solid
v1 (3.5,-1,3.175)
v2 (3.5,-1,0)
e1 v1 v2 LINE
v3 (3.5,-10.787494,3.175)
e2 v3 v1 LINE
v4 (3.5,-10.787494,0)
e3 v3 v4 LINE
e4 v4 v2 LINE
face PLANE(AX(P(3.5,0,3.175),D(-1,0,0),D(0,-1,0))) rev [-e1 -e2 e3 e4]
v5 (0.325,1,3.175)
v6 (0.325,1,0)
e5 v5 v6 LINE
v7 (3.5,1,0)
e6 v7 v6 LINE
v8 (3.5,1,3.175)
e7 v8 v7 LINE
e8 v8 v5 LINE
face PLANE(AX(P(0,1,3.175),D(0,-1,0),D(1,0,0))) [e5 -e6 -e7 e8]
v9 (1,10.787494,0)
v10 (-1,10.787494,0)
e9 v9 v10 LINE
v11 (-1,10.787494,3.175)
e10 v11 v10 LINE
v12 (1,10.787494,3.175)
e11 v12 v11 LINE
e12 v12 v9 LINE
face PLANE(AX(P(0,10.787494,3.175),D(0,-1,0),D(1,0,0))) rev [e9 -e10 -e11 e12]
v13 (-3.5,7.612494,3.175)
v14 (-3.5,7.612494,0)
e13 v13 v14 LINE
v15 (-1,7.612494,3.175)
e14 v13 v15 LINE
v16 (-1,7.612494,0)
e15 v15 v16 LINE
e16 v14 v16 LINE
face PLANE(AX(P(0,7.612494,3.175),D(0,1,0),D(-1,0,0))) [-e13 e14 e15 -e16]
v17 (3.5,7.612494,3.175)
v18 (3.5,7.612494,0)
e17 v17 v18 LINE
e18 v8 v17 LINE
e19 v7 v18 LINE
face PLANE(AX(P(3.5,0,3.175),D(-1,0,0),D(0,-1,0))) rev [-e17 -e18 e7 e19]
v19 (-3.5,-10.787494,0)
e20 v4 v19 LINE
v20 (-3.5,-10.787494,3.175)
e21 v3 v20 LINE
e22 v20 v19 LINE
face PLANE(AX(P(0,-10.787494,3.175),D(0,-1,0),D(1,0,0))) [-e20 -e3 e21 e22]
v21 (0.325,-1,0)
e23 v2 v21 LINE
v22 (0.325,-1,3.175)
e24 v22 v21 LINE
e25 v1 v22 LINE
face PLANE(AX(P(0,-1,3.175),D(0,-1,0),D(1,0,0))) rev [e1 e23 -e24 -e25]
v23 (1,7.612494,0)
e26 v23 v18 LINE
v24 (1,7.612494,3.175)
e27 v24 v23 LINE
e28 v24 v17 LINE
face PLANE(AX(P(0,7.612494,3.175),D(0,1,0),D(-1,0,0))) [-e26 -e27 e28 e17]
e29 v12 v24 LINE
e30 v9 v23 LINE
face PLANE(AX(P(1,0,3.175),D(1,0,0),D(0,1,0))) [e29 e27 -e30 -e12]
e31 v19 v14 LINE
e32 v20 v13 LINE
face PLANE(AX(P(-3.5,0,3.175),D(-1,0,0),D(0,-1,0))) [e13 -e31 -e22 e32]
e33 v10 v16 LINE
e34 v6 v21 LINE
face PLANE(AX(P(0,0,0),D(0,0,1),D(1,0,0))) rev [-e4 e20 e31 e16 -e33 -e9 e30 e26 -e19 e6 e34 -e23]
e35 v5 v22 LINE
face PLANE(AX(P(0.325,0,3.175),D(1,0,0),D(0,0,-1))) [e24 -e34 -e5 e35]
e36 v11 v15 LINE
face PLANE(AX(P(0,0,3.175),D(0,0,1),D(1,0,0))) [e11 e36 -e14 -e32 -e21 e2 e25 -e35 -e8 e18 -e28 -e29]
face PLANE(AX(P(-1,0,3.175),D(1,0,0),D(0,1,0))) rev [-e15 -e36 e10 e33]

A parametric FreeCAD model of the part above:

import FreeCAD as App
import Part
import Sketcher

V = App.Vector


def add_polygon(sketch, points):
    """Adds a closed chain of lines whose ends are joined by coincident constraints."""
    first, n = sketch.GeometryCount, len(points)
    for a, b in zip(points, points[1:] + points[:1]):
        sketch.addGeometry(Part.LineSegment(App.Vector(*a, 0), App.Vector(*b, 0)), False)
    for i in range(n):
        sketch.addConstraint(Sketcher.Constraint("Coincident", first + i, 2, first + (i + 1) % n, 1))

doc = App.newDocument("Part")
body = doc.addObject("PartDesign::Body", "Body")

# Sketch on XY plane
sketch1 = body.newObject("Sketcher::SketchObject", "Sketch")
sketch1.AttachmentSupport = (doc.getObject("XY_Plane"), [""])
sketch1.MapMode = "FlatFace"
add_polygon(sketch1, [(-3.5, -10.8), (3.5, -10.8), (3.5, -1), (0.3, -1), (0.3, 1), (3.5, 1), (3.5, 7.6), (1, 7.6), (1, 10.8), (-1, 10.8), (-1, 7.6), (-3.5, 7.6)])  # lines 0-11
sketch1.addConstraint([
    Sketcher.Constraint("Horizontal", 0),
    Sketcher.Constraint("Vertical", 1),
    Sketcher.Constraint("Horizontal", 2),
    Sketcher.Constraint("Vertical", 3),
    Sketcher.Constraint("Horizontal", 4),
    Sketcher.Constraint("Vertical", 5),
    Sketcher.Constraint("Horizontal", 6),
    Sketcher.Constraint("Vertical", 7),
    Sketcher.Constraint("Horizontal", 8),
    Sketcher.Constraint("Vertical", 9),
    Sketcher.Constraint("Horizontal", 10),
    Sketcher.Constraint("Vertical", 11),
    Sketcher.Constraint("Symmetric", 6, 2, 9, 2, -2),
    Sketcher.Constraint("Symmetric", 1, 2, 4, 2, -1),
    Sketcher.Constraint("Equal", 6, 10),
    Sketcher.Constraint("Equal", 8, 3),
    Sketcher.Constraint("Equal", 4, 7),
    Sketcher.Constraint("DistanceX", 0, 1, 0, 2, 7.0),
    Sketcher.Constraint("DistanceX", 8, 2, 8, 1, 2.0),
    Sketcher.Constraint("DistanceX", 2, 2, 2, 1, 3.175),
    Sketcher.Constraint("DistanceY", 11, 2, 11, 1, 18.399989),
    Sketcher.Constraint("DistanceY", 1, 1, 1, 2, 9.787494),
])
pad1 = body.newObject("PartDesign::Pad", "Pad")
pad1.Profile = sketch1
pad1.Length = 3.175

doc.recompute()
